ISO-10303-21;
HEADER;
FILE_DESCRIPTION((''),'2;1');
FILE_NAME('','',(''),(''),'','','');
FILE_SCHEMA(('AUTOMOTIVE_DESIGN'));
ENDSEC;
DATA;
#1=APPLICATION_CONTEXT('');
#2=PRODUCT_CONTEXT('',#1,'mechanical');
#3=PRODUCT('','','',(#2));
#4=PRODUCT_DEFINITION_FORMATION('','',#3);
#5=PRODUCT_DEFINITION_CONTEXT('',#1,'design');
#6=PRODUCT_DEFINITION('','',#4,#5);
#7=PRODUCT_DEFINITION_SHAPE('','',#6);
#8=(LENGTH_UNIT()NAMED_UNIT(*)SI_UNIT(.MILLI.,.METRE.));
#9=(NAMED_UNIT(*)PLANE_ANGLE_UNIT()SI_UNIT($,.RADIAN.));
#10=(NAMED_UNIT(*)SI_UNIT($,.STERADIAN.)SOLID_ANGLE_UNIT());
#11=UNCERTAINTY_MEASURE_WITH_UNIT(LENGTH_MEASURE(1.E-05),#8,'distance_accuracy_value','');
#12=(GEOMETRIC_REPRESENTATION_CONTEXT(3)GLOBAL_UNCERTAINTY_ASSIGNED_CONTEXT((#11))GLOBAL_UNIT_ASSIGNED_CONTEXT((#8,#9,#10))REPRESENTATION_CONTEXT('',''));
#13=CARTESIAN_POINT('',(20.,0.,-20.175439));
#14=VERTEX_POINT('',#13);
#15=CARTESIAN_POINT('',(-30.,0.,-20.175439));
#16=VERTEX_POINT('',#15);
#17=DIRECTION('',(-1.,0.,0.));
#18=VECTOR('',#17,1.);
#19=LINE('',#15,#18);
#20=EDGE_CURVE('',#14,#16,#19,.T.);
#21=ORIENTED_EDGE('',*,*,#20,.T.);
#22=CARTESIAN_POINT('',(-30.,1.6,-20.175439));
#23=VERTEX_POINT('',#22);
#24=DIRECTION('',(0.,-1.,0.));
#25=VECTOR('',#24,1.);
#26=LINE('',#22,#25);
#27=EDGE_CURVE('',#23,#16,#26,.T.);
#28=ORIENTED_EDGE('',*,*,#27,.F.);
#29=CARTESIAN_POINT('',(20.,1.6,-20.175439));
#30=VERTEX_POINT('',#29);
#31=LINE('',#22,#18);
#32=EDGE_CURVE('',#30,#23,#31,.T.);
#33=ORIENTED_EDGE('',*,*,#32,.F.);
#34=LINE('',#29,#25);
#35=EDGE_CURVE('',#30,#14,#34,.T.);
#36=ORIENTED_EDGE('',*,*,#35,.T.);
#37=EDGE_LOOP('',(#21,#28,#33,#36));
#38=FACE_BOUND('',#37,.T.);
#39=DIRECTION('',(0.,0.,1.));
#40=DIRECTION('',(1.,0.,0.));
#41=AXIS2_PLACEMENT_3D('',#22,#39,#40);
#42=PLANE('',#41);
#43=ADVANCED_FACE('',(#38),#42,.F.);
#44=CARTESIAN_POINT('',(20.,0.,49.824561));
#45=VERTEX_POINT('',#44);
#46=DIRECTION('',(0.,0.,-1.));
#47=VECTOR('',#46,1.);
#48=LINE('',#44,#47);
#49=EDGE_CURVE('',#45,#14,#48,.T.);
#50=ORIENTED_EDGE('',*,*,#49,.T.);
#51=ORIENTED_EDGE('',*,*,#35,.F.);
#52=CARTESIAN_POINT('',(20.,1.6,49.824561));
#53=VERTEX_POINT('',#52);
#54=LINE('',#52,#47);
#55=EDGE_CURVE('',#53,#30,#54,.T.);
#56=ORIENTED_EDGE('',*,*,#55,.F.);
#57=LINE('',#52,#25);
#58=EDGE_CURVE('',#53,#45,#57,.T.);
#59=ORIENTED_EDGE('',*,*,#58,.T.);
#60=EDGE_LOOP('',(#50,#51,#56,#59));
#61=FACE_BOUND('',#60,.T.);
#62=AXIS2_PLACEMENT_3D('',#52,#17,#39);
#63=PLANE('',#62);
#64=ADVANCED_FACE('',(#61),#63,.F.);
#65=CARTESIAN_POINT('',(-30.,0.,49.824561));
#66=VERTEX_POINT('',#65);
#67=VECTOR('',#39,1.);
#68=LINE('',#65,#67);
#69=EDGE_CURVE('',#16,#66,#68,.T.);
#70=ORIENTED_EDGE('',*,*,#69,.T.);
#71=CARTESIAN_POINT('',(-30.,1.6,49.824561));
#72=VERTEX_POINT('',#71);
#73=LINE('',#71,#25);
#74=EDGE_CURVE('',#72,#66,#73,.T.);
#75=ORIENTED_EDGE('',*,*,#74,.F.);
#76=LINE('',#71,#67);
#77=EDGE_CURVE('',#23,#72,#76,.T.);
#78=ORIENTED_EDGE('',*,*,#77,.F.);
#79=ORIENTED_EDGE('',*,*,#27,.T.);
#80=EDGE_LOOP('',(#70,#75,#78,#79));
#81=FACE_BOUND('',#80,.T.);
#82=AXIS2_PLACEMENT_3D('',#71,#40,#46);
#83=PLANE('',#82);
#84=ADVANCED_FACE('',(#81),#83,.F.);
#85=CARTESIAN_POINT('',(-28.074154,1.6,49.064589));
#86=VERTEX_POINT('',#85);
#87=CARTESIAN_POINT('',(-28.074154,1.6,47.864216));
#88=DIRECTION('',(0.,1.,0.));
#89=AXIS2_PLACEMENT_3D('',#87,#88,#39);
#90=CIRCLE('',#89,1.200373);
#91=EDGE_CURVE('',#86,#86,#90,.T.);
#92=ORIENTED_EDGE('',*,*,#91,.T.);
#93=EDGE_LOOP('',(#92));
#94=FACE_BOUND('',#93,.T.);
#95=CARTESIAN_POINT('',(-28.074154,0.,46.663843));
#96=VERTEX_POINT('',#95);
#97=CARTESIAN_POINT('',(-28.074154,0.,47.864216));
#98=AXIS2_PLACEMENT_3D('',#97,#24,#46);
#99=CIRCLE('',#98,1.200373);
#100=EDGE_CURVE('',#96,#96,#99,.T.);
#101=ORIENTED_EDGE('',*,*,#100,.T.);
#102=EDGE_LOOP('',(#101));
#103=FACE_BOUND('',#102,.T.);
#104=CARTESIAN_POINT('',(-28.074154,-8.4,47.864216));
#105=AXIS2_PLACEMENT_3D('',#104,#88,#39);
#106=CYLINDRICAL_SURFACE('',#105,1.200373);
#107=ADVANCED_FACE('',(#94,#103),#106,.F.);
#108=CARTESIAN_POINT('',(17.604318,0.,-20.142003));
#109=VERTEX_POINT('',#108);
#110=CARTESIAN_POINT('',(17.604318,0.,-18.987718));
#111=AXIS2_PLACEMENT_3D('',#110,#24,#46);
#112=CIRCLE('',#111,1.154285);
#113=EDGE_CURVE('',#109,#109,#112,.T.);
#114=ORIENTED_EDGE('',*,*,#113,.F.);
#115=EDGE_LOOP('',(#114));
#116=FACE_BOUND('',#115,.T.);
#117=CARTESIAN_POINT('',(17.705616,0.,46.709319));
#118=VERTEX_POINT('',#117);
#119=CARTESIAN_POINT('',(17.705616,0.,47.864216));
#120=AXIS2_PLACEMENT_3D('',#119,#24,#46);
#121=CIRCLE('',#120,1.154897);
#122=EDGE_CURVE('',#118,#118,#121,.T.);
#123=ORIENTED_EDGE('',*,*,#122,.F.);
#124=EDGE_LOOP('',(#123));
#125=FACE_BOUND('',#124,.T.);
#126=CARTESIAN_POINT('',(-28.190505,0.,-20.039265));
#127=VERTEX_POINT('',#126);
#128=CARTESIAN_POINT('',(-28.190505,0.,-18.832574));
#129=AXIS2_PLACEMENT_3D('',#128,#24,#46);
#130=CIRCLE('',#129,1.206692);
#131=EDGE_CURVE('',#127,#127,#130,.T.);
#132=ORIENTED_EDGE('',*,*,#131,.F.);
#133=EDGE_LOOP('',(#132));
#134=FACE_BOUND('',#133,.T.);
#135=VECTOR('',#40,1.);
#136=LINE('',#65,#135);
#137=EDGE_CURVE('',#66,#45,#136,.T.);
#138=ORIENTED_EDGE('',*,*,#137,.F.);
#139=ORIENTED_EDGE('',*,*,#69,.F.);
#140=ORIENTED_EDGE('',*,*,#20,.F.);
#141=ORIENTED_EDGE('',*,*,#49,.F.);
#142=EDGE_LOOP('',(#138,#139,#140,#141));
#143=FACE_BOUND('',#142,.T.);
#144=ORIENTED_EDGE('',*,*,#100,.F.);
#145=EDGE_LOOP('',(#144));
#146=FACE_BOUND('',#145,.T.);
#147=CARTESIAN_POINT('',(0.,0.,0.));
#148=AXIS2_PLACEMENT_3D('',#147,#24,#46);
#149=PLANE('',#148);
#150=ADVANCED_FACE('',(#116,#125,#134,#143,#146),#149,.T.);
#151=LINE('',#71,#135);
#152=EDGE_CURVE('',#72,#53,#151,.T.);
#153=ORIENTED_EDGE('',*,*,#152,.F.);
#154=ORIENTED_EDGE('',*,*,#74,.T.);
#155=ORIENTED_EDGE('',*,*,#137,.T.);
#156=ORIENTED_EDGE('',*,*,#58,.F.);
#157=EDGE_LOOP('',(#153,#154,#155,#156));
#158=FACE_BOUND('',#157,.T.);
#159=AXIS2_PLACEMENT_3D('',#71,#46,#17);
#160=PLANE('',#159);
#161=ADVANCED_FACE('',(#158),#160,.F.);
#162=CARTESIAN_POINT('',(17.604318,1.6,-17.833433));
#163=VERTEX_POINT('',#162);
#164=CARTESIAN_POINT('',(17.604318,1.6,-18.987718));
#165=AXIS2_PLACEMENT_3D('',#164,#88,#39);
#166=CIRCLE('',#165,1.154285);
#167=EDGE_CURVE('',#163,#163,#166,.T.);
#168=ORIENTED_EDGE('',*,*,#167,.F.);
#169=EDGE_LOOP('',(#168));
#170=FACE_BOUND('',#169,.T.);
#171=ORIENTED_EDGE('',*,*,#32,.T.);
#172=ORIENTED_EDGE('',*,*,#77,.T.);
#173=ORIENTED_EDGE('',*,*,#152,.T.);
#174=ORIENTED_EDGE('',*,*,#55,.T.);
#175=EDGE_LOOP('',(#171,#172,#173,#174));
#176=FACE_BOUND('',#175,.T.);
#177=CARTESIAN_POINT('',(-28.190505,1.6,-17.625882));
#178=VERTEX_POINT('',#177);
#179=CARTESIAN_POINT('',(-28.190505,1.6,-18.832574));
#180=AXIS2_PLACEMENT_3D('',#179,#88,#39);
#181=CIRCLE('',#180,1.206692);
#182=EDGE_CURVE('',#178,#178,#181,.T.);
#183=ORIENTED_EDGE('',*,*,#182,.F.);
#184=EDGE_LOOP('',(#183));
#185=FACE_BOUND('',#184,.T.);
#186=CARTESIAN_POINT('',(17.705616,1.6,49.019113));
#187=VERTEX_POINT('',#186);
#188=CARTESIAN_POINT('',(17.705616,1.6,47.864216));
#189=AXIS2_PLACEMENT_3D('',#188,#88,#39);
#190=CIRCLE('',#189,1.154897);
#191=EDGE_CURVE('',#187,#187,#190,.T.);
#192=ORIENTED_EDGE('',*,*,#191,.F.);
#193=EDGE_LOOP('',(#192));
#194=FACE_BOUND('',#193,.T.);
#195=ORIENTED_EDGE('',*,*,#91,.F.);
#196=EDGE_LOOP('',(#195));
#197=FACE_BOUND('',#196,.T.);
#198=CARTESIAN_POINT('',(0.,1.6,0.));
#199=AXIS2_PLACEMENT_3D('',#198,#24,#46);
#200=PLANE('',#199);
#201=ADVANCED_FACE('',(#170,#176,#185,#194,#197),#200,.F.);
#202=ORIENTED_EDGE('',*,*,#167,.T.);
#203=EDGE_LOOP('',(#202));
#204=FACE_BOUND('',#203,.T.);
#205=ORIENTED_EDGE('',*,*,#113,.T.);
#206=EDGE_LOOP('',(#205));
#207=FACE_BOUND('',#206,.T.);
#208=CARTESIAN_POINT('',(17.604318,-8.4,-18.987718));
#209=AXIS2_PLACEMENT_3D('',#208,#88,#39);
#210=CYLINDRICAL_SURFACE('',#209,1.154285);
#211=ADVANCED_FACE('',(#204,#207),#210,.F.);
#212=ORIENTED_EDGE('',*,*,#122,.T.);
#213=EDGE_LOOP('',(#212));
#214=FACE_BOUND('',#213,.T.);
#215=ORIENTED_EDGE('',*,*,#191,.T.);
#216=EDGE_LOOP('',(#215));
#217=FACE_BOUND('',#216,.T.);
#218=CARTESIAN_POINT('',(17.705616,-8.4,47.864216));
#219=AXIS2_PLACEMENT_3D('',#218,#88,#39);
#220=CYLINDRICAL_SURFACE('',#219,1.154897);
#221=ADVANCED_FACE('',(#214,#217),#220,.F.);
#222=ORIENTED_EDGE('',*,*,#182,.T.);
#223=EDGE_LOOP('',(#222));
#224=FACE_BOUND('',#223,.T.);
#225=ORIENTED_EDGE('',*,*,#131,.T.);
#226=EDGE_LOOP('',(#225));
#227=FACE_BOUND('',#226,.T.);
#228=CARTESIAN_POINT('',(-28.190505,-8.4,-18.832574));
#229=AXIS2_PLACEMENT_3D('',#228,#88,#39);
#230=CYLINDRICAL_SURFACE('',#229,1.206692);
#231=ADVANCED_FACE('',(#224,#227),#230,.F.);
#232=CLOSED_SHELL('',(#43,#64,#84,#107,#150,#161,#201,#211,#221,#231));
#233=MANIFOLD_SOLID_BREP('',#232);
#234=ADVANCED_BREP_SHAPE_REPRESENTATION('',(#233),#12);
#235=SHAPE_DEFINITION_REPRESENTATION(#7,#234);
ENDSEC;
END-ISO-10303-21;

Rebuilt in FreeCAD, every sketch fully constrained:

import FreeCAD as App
import Part
import Sketcher
Q = App.Units.Quantity


def add_polygon(sketch, points):
    """Adds a closed chain of lines whose ends are joined by coincident constraints."""
    first, n = sketch.GeometryCount, len(points)
    for a, b in zip(points, points[1:] + points[:1]):
        sketch.addGeometry(Part.LineSegment(App.Vector(*a, 0), App.Vector(*b, 0)), False)
    for i in range(n):
        sketch.addConstraint(Sketcher.Constraint("Coincident", first + i, 2, first + (i + 1) % n, 1))

doc = App.newDocument("Part")
params = doc.addObject("Spreadsheet::Sheet", "Params")
for row, (alias, value) in enumerate([
    ("sketch1_width", "50 mm"),
    ("sketch1_height", "70 mm"),
    ("pad1_length", "1.6 mm"),
    ("pocket1_length", "10 mm"),
], start=1):
    params.set(f"A{row}", alias)
    params.set(f"B{row}", "=" + value)
    params.setAlias(f"B{row}", alias)

body = doc.addObject("PartDesign::Body", "Body")

sketch1 = body.newObject("Sketcher::SketchObject", "Sketch")
sketch1.AttachmentSupport = (doc.getObject("XZ_Plane"), [""])
sketch1.MapMode = "FlatFace"
add_polygon(sketch1, [(-30, -20), (-30, 50), (20, 50), (20, -20)])
sketch1.addConstraint([
    Sketcher.Constraint("Vertical", 0),
    Sketcher.Constraint("Horizontal", 1),
    Sketcher.Constraint("Vertical", 2),
    Sketcher.Constraint("Horizontal", 3),
    Sketcher.Constraint("DistanceX", 1, 1, 1, 2, Q("50 mm")),
    Sketcher.Constraint("DistanceY", 0, 1, 0, 2, Q("70 mm")),
    Sketcher.Constraint("DistanceX", 0, 2, -1, 1, Q("30 mm")),
    Sketcher.Constraint("DistanceY", -1, 1, 0, 2, Q("49.824561 mm")),
])
sketch1.setExpression("Constraints[8]", "Params.sketch1_width")
sketch1.setExpression("Constraints[9]", "Params.sketch1_height")
pad1 = body.newObject("PartDesign::Pad", "Pad")
pad1.Profile = sketch1
pad1.setExpression("Length", "Params.pad1_length")
pad1.Reversed = True

sketch2 = body.newObject("Sketcher::SketchObject", "Sketch001")
sketch2.AttachmentSupport = (doc.getObject("XZ_Plane"), [""])
sketch2.MapMode = "FlatFace"
sketch2.AttachmentOffset = App.Placement(App.Vector(0, 0, -1.6), App.Rotation())
sketch2.addGeometry([
    Part.Circle(App.Vector(-28.2, -18.8, 0), App.Vector(0, 0, 1), 1.2),
    Part.Circle(App.Vector(17.6, -19, 0), App.Vector(0, 0, 1), 1.2),
    Part.Circle(App.Vector(17.7, 47.9, 0), App.Vector(0, 0, 1), 1.2),
    Part.Circle(App.Vector(-28.1, 47.9, 0), App.Vector(0, 0, 1), 1.2),
], False)
sketch2.addConstraint([
    Sketcher.Constraint("Horizontal", 2, 3, 3, 3),
    Sketcher.Constraint("Diameter", 1, Q("2.30857 mm")),
    Sketcher.Constraint("Diameter", 0, Q("2.413384 mm")),
    Sketcher.Constraint("Diameter", 2, Q("2.309794 mm")),
    Sketcher.Constraint("Diameter", 3, Q("2.400746 mm")),
    Sketcher.Constraint("DistanceX", -1, 1, 1, 3, Q("17.604318 mm")),
    Sketcher.Constraint("DistanceX", 0, 3, 2, 3, Q("45.896121 mm")),
    Sketcher.Constraint("DistanceY", 0, 3, 2, 3, Q("66.69679 mm")),
    Sketcher.Constraint("DistanceX", 3, 3, 2, 3, Q("45.77977 mm")),
    Sketcher.Constraint("DistanceX", 3, 3, 1, 3, Q("45.678472 mm")),
    Sketcher.Constraint("DistanceY", 0, 3, -1, 1, Q("18.832574 mm")),
    Sketcher.Constraint("DistanceY", 1, 3, -1, 1, Q("18.987718 mm")),
])
pocket1 = body.newObject("PartDesign::Pocket", "Pocket")
pocket1.Profile = sketch2
pocket1.setExpression("Length", "Params.pocket1_length")
pocket1.Reversed = True

doc.recompute()
